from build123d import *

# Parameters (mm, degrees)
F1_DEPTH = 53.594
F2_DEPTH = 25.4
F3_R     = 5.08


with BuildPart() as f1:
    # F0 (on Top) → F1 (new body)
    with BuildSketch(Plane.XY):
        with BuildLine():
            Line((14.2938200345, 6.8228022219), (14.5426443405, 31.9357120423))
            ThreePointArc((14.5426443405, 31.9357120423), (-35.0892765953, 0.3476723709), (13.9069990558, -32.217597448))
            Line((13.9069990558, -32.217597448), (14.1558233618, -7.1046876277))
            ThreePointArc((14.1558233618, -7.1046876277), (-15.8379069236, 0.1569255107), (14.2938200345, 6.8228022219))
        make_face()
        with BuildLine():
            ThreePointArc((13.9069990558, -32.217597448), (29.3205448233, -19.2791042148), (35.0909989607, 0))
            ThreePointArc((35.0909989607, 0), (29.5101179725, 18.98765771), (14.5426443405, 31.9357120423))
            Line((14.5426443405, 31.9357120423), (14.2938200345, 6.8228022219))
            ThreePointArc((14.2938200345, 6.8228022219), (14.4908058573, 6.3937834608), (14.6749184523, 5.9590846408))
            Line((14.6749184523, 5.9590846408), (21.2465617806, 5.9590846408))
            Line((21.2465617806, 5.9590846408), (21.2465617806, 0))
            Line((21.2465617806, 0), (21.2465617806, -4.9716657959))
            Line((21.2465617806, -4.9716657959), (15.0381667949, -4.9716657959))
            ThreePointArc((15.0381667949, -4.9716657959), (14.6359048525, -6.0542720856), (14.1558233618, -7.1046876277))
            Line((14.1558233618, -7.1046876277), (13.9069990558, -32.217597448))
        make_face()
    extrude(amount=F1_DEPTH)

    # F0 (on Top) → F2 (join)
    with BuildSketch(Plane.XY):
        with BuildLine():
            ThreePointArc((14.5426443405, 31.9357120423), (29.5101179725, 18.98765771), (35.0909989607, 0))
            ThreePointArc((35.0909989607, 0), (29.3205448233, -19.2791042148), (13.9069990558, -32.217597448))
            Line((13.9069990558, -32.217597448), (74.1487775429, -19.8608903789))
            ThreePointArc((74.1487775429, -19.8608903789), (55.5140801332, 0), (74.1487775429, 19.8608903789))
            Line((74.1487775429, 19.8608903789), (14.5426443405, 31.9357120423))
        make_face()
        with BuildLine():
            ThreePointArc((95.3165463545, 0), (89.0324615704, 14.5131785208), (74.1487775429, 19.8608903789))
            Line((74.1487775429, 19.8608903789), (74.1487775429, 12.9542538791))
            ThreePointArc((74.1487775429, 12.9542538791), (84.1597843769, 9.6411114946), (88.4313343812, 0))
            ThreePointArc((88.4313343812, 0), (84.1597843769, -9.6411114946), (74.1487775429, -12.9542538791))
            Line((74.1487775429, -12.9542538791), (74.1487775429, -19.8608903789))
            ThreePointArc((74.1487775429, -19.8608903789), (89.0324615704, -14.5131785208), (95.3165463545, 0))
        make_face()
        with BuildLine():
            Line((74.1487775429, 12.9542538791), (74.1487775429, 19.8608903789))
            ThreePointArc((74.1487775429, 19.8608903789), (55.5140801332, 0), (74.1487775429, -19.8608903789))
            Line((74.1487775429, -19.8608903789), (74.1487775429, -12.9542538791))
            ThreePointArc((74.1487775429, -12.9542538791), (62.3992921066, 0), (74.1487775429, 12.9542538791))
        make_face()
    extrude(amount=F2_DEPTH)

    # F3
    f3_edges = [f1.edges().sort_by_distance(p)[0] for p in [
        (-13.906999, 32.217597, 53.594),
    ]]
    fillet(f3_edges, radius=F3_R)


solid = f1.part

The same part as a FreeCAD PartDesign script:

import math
import FreeCAD as App
import Part
import Sketcher
Q = App.Units.Quantity


def edges_at(feature, points):
    """Names of the edges that pass closest to the given points."""
    edges = feature.Shape.Edges
    near = lambda p: min(range(len(edges)), key=lambda i: edges[i].distToShape(Part.Vertex(*p))[0])
    return sorted({f"Edge{near(p) + 1}" for p in points})

doc = App.newDocument("Part")
body = doc.addObject("PartDesign::Body", "Body")

# Sketch on XY plane
sketch1 = body.newObject("Sketcher::SketchObject", "Sketch")
sketch1.AttachmentSupport = (doc.getObject("XY_Plane"), [""])
sketch1.MapMode = "FlatFace"
sketch1.addGeometry([
    Part.Circle(App.Vector(0, 0, 0), App.Vector(0, 0, 1), 35.090999),  # 0
    Part.ArcOfCircle(Part.Circle(App.Vector(0, 0, 0), App.Vector(0, 0, 1), 15.838684), math.radians(25.516325), math.radians(333.348314)),  # 1
    Part.ArcOfCircle(Part.Circle(App.Vector(0, 0, 0), App.Vector(0, 0, 1), 15.838684), math.radians(22.100731), math.radians(25.516325)),  # 2
    Part.LineSegment(App.Vector(14.674918, 5.959085, 0), App.Vector(21.246562, 5.959085, 0)),  # 3
    Part.LineSegment(App.Vector(21.246562, 5.959085, 0), App.Vector(21.246562, -4.971666, 0)),  # 4
    Part.LineSegment(App.Vector(21.246562, -4.971666, 0), App.Vector(15.038167, -4.971666, 0)),  # 5
    Part.ArcOfCircle(Part.Circle(App.Vector(0, 0, 0), App.Vector(0, 0, 1), 15.838684), math.radians(-26.651686), math.radians(-18.29405)),  # 6
], False)
sketch1.addConstraint([
    Sketcher.Constraint("Tangent", 1, 1, 2, 2),
    Sketcher.Constraint("Coincident", 2, 1, 3, 1),
    Sketcher.Constraint("Coincident", 3, 2, 4, 1),
    Sketcher.Constraint("Coincident", 4, 2, 5, 1),
    Sketcher.Constraint("Coincident", 5, 2, 6, 2),
    Sketcher.Constraint("Tangent", 6, 1, 1, 2),
    Sketcher.Constraint("Horizontal", 3),
    Sketcher.Constraint("Vertical", 4),
    Sketcher.Constraint("Horizontal", 5),
    Sketcher.Constraint("Coincident", 0, 3, -1, 1),
    Sketcher.Constraint("Coincident", 1, 3, -1, 1),
    Sketcher.Constraint("Equal", 1, 2),
    Sketcher.Constraint("Equal", 2, 6),
    Sketcher.Constraint("Diameter", 0, 70.181998),
    Sketcher.Constraint("Radius", 1, 15.838684),
    Sketcher.Constraint("DistanceY", 4, 2, 4, 1, 10.93075),
    Sketcher.Constraint("DistanceX", 1, 1, 2, 1, 0.381098),
    Sketcher.Constraint("DistanceX", 3, 1, 3, 2, 6.571643),
    Sketcher.Constraint("DistanceX", 5, 2, 5, 1, 6.208395),
    Sketcher.Constraint("DistanceY", 6, 1, 5, 2, 2.133022),
])
pad1 = body.newObject("PartDesign::Pad", "Pad")
pad1.Profile = sketch1
pad1.Length = Q("2.11 in")

# Sketch on XY plane
sketch2 = body.newObject("Sketcher::SketchObject", "Sketch001")
sketch2.AttachmentSupport = (doc.getObject("XY_Plane"), [""])
sketch2.MapMode = "FlatFace"
sketch2.addGeometry([
    Part.ArcOfCircle(Part.Circle(App.Vector(0, 0, 0), App.Vector(0, 0, 1), 35.090999), math.radians(0), math.radians(65.516786)),  # 0
    Part.ArcOfCircle(Part.Circle(App.Vector(0, 0, 0), App.Vector(0, 0, 1), 35.090999), math.radians(-66.652148), math.radians(0)),  # 1
    Part.LineSegment(App.Vector(13.906999, -32.217597, 0), App.Vector(74.148778, -19.86089, 0)),  # 2
    Part.ArcOfCircle(Part.Circle(App.Vector(75.415313, 0, 0), App.Vector(0, 0, 1), 19.901233), math.radians(-93.64883), math.radians(0)),  # 3
    Part.ArcOfCircle(Part.Circle(App.Vector(75.415313, 0, 0), App.Vector(0, 0, 1), 19.901233), math.radians(0), math.radians(93.64883)),  # 4
    Part.LineSegment(App.Vector(74.148778, 19.86089, 0), App.Vector(14.542644, 31.935712, 0)),  # 5
    Part.ArcOfCircle(Part.Circle(App.Vector(75.415313, 0, 0), App.Vector(0, 0, 1), 13.016021), math.radians(95.584053), math.radians(264.415947)),  # 6
    Part.ArcOfCircle(Part.Circle(App.Vector(75.415313, 0, 0), App.Vector(0, 0, 1), 13.016021), math.radians(0), math.radians(95.584053)),  # 7
    Part.ArcOfCircle(Part.Circle(App.Vector(75.415313, 0, 0), App.Vector(0, 0, 1), 13.016021), math.radians(-95.584053), math.radians(0)),  # 8
], False)
sketch2.addConstraint([
    Sketcher.Constraint("Tangent", 0, 1, 1, 2),
    Sketcher.Constraint("Coincident", 1, 1, 2, 1),
    Sketcher.Constraint("Coincident", 2, 2, 3, 1),
    Sketcher.Constraint("Tangent", 3, 2, 4, 1),
    Sketcher.Constraint("Coincident", 4, 2, 5, 1),
    Sketcher.Constraint("Coincident", 5, 2, 0, 2),
    Sketcher.Constraint("Tangent", 6, 1, 7, 2),
    Sketcher.Constraint("Tangent", 7, 1, 8, 2),
    Sketcher.Constraint("Tangent", 8, 1, 6, 2),
    Sketcher.Constraint("Coincident", 0, 3, -1, 1),
    Sketcher.Constraint("Coincident", 6, 3, 3, 3),
    Sketcher.Constraint("Equal", 0, 1),
    Sketcher.Constraint("Equal", 3, 4),
    Sketcher.Constraint("Symmetric", 2, 2, 4, 2, -1),
    Sketcher.Constraint("PointOnObject", 0, 1, -1),
    Sketcher.Constraint("PointOnObject", 3, 2, -1),
    Sketcher.Constraint("PointOnObject", 7, 1, -1),
    Sketcher.Constraint("Vertical", 4, 2, 6, 1),
    Sketcher.Constraint("Vertical", 6, 1, 8, 1),
    Sketcher.Constraint("Radius", 0, 35.090999),
    Sketcher.Constraint("Radius", 6, 13.016021),
    Sketcher.Constraint("Radius", 3, 19.901233),
    Sketcher.Constraint("DistanceX", -1, 1, 1, 1, 13.906999),
    Sketcher.Constraint("DistanceY", 2, 2, -1, 1, 19.86089),
    Sketcher.Constraint("DistanceY", 4, 2, 5, 2, 12.074822),
    Sketcher.Constraint("Distance", 2, 61.496017),
])
pad2 = body.newObject("PartDesign::Pad", "Pad001")
pad2.Profile = sketch2
pad2.Length = Q("1 in")
doc.recompute()

fillet = body.newObject("PartDesign::Fillet", "Fillet")
fillet.Base = (pad2, edges_at(pad2, [(-35.091, 0, 53.594)]))
fillet.Radius = Q("0.2 in")

doc.recompute()
